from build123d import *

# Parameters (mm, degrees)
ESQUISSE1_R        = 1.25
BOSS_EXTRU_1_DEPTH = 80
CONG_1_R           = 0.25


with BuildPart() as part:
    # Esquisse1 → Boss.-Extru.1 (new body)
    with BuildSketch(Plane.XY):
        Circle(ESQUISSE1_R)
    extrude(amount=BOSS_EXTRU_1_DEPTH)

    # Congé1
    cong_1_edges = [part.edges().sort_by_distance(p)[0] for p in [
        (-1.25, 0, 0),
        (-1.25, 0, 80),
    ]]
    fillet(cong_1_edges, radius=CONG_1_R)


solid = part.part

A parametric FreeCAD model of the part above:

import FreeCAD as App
import Part
import Sketcher

V = App.Vector
Q = App.Units.Quantity


def edges_at(feature, points):
    """Names of the edges that pass closest to the given points."""
    edges = feature.Shape.Edges
    near = lambda p: min(range(len(edges)), key=lambda i: edges[i].distToShape(Part.Vertex(*p))[0])
    return sorted({f"Edge{near(p) + 1}" for p in points})

doc = App.newDocument("Part")
body = doc.addObject("PartDesign::Body", "Body")

sketch1 = body.newObject("Sketcher::SketchObject", "Sketch")
sketch1.AttachmentSupport = (doc.getObject("XY_Plane"), [""])
sketch1.MapMode = "FlatFace"
sketch1.addGeometry(Part.Circle(V(0, 0, 0), V(0, 0, 1), 1.25), False)
sketch1.addConstraint(Sketcher.Constraint("Coincident", 0, 3, -1, 1))
sketch1.addConstraint(Sketcher.Constraint("Diameter", 0, Q("2.5 mm")))
pad1 = body.newObject("PartDesign::Pad", "Pad")
pad1.Profile = sketch1
pad1.Length = 80
doc.recompute()

fillet = body.newObject("PartDesign::Fillet", "Fillet")
fillet.Base = (pad1, edges_at(pad1, [(-1.25, 0, 0), (-1.25, 0, 80)]))
fillet.Radius = 0.25

doc.recompute()
